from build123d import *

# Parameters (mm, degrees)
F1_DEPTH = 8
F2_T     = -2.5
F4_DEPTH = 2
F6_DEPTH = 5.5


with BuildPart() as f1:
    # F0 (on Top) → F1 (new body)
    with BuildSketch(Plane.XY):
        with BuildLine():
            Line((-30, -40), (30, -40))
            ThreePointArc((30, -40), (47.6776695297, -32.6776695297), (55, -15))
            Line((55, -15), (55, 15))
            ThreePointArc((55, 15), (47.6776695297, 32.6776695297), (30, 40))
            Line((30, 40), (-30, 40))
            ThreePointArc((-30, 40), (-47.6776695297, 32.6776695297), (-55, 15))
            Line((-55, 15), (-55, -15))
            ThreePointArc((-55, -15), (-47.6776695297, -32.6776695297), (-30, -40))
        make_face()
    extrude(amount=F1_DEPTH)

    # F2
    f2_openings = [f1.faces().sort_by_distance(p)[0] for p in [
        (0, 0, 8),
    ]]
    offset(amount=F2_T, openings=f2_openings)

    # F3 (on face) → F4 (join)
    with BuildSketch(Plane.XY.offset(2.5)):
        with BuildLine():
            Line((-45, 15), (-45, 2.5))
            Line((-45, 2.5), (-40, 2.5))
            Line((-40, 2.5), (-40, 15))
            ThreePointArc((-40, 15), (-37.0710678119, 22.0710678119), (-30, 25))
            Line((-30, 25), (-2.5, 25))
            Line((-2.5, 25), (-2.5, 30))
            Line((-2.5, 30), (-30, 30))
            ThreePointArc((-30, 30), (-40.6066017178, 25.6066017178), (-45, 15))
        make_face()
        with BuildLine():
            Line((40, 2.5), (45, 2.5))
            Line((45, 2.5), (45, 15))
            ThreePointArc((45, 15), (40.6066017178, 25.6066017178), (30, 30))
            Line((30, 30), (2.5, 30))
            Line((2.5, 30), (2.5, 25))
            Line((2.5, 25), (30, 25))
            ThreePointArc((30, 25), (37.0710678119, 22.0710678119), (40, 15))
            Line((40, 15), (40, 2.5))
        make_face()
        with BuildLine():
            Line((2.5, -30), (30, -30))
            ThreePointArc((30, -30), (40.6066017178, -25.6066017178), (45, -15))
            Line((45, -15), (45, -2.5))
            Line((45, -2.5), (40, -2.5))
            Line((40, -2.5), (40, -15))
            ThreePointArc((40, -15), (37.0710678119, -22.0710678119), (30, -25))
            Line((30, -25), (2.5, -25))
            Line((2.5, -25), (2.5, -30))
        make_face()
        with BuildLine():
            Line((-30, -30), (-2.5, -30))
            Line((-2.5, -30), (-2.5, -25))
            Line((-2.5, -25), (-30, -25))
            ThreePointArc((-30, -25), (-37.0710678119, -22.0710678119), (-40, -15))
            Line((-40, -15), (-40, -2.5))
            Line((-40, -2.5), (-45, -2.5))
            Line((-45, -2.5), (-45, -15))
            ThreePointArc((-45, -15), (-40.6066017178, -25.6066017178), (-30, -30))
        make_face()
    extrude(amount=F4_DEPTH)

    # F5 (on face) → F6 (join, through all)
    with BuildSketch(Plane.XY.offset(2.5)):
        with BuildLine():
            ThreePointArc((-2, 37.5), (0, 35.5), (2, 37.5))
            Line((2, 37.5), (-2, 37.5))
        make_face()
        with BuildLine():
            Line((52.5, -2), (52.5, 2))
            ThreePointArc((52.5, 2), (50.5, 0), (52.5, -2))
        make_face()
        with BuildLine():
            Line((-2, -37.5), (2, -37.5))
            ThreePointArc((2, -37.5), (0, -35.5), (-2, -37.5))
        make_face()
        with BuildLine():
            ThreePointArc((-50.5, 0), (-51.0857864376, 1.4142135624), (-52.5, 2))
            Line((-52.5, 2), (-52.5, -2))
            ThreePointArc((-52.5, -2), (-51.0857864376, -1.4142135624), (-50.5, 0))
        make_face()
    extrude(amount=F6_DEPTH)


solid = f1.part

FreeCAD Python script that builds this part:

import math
import FreeCAD as App
import Part
import Sketcher


def faces_at(feature, points):
    """Names of the faces that lie closest to the given points."""
    faces = feature.Shape.Faces
    near = lambda p: min(range(len(faces)), key=lambda i: faces[i].distToShape(Part.Vertex(*p))[0])
    return sorted({f"Face{near(p) + 1}" for p in points})

doc = App.newDocument("Part")
body = doc.addObject("PartDesign::Body", "Body")

sketch1 = body.newObject("Sketcher::SketchObject", "Sketch")
sketch1.AttachmentSupport = (doc.getObject("XY_Plane"), [""])
sketch1.MapMode = "FlatFace"
sketch1.addGeometry(Part.LineSegment(App.Vector(-30, -40, 0), App.Vector(30, -40, 0)), False)
sketch1.addGeometry(Part.ArcOfCircle(Part.Circle(App.Vector(30, -15, 0), App.Vector(0, 0, 1), 25), math.radians(-90), math.radians(0)), False)
sketch1.addGeometry(Part.LineSegment(App.Vector(55, -15, 0), App.Vector(55, 15, 0)), False)
sketch1.addGeometry(Part.ArcOfCircle(Part.Circle(App.Vector(30, 15, 0), App.Vector(0, 0, 1), 25), math.radians(0), math.radians(90)), False)
sketch1.addGeometry(Part.LineSegment(App.Vector(30, 40, 0), App.Vector(-30, 40, 0)), False)
sketch1.addGeometry(Part.ArcOfCircle(Part.Circle(App.Vector(-30, 15, 0), App.Vector(0, 0, 1), 25), math.radians(90), math.radians(180)), False)
sketch1.addGeometry(Part.LineSegment(App.Vector(-55, 15, 0), App.Vector(-55, -15, 0)), False)
sketch1.addGeometry(Part.ArcOfCircle(Part.Circle(App.Vector(-30, -15, 0), App.Vector(0, 0, 1), 25), math.radians(180), math.radians(270)), False)
sketch1.addConstraint(Sketcher.Constraint("Tangent", 0, 2, 1, 1))
sketch1.addConstraint(Sketcher.Constraint("Tangent", 1, 2, 2, 1))
sketch1.addConstraint(Sketcher.Constraint("Tangent", 2, 2, 3, 1))
sketch1.addConstraint(Sketcher.Constraint("Tangent", 3, 2, 4, 1))
sketch1.addConstraint(Sketcher.Constraint("Tangent", 4, 2, 5, 1))
sketch1.addConstraint(Sketcher.Constraint("Tangent", 5, 2, 6, 1))
sketch1.addConstraint(Sketcher.Constraint("Tangent", 6, 2, 7, 1))
sketch1.addConstraint(Sketcher.Constraint("Tangent", 7, 2, 0, 1))
sketch1.addConstraint(Sketcher.Constraint("Horizontal", 0))
sketch1.addConstraint(Sketcher.Constraint("Vertical", 2))
sketch1.addConstraint(Sketcher.Constraint("Horizontal", 4))
sketch1.addConstraint(Sketcher.Constraint("Vertical", 6))
sketch1.addConstraint(Sketcher.Constraint("Equal", 1, 3))
sketch1.addConstraint(Sketcher.Constraint("Equal", 3, 5))
sketch1.addConstraint(Sketcher.Constraint("Equal", 5, 7))
sketch1.addConstraint(Sketcher.Constraint("Symmetric", 1, 3, 5, 3, -1, 1))
sketch1.addConstraint(Sketcher.Constraint("Radius", 1, 25.0))
sketch1.addConstraint(Sketcher.Constraint("DistanceX", 0, 1, 0, 2, 60.0))
sketch1.addConstraint(Sketcher.Constraint("DistanceY", 2, 1, 2, 2, 30.0))
pad1 = body.newObject("PartDesign::Pad", "Pad")
pad1.Profile = sketch1
pad1.Length = 8
doc.recompute()

thickness = body.newObject("PartDesign::Thickness", "Thickness")
thickness.Base = (pad1, faces_at(pad1, [(0, 0, 8)]))
thickness.Value = 2.5
thickness.Reversed = True
thickness.Join = "Arc"

sketch2 = body.newObject("Sketcher::SketchObject", "Sketch001")
sketch2.AttachmentSupport = (doc.getObject("XY_Plane"), [""])
sketch2.MapMode = "FlatFace"
sketch2.AttachmentOffset = App.Placement(App.Vector(0, 0, 2.5), App.Rotation())
sketch2.addGeometry(Part.LineSegment(App.Vector(-45, 15, 0), App.Vector(-45, 2.5, 0)), False)
sketch2.addGeometry(Part.LineSegment(App.Vector(-45, 2.5, 0), App.Vector(-40, 2.5, 0)), False)
sketch2.addGeometry(Part.LineSegment(App.Vector(-40, 2.5, 0), App.Vector(-40, 15, 0)), False)
sketch2.addGeometry(Part.ArcOfCircle(Part.Circle(App.Vector(-30, 15, 0), App.Vector(0, 0, 1), 10), math.radians(90), math.radians(180)), False)
sketch2.addGeometry(Part.LineSegment(App.Vector(-30, 25, 0), App.Vector(-2.5, 25, 0)), False)
sketch2.addGeometry(Part.LineSegment(App.Vector(-2.5, 25, 0), App.Vector(-2.5, 30, 0)), False)
sketch2.addGeometry(Part.LineSegment(App.Vector(-2.5, 30, 0), App.Vector(-30, 30, 0)), False)
sketch2.addGeometry(Part.ArcOfCircle(Part.Circle(App.Vector(-30, 15, 0), App.Vector(0, 0, 1), 15), math.radians(90), math.radians(180)), False)
sketch2.addGeometry(Part.LineSegment(App.Vector(40, 2.5, 0), App.Vector(45, 2.5, 0)), False)
sketch2.addGeometry(Part.LineSegment(App.Vector(45, 2.5, 0), App.Vector(45, 15, 0)), False)
sketch2.addGeometry(Part.ArcOfCircle(Part.Circle(App.Vector(30, 15, 0), App.Vector(0, 0, 1), 15), math.radians(0), math.radians(90)), False)
sketch2.addGeometry(Part.LineSegment(App.Vector(30, 30, 0), App.Vector(2.5, 30, 0)), False)
sketch2.addGeometry(Part.LineSegment(App.Vector(2.5, 30, 0), App.Vector(2.5, 25, 0)), False)
sketch2.addGeometry(Part.LineSegment(App.Vector(2.5, 25, 0), App.Vector(30, 25, 0)), False)
sketch2.addGeometry(Part.ArcOfCircle(Part.Circle(App.Vector(30, 15, 0), App.Vector(0, 0, 1), 10), math.radians(0), math.radians(90)), False)
sketch2.addGeometry(Part.LineSegment(App.Vector(40, 15, 0), App.Vector(40, 2.5, 0)), False)
sketch2.addGeometry(Part.LineSegment(App.Vector(2.5, -30, 0), App.Vector(30, -30, 0)), False)
sketch2.addGeometry(Part.ArcOfCircle(Part.Circle(App.Vector(30, -15, 0), App.Vector(0, 0, 1), 15), math.radians(-90), math.radians(0)), False)
sketch2.addGeometry(Part.LineSegment(App.Vector(45, -15, 0), App.Vector(45, -2.5, 0)), False)
sketch2.addGeometry(Part.LineSegment(App.Vector(45, -2.5, 0), App.Vector(40, -2.5, 0)), False)
sketch2.addGeometry(Part.LineSegment(App.Vector(40, -2.5, 0), App.Vector(40, -15, 0)), False)
sketch2.addGeometry(Part.ArcOfCircle(Part.Circle(App.Vector(30, -15, 0), App.Vector(0, 0, 1), 10), math.radians(-90), math.radians(0)), False)
sketch2.addGeometry(Part.LineSegment(App.Vector(30, -25, 0), App.Vector(2.5, -25, 0)), False)
sketch2.addGeometry(Part.LineSegment(App.Vector(2.5, -25, 0), App.Vector(2.5, -30, 0)), False)
sketch2.addGeometry(Part.LineSegment(App.Vector(-30, -30, 0), App.Vector(-2.5, -30, 0)), False)
sketch2.addGeometry(Part.LineSegment(App.Vector(-2.5, -30, 0), App.Vector(-2.5, -25, 0)), False)
sketch2.addGeometry(Part.LineSegment(App.Vector(-2.5, -25, 0), App.Vector(-30, -25, 0)), False)
sketch2.addGeometry(Part.ArcOfCircle(Part.Circle(App.Vector(-30, -15, 0), App.Vector(0, 0, 1), 10), math.radians(180), math.radians(270)), False)
sketch2.addGeometry(Part.LineSegment(App.Vector(-40, -15, 0), App.Vector(-40, -2.5, 0)), False)
sketch2.addGeometry(Part.LineSegment(App.Vector(-40, -2.5, 0), App.Vector(-45, -2.5, 0)), False)
sketch2.addGeometry(Part.LineSegment(App.Vector(-45, -2.5, 0), App.Vector(-45, -15, 0)), False)
sketch2.addGeometry(Part.ArcOfCircle(Part.Circle(App.Vector(-30, -15, 0), App.Vector(0, 0, 1), 15), math.radians(180), math.radians(270)), False)
sketch2.addConstraint(Sketcher.Constraint("Coincident", 0, 2, 1, 1))
sketch2.addConstraint(Sketcher.Constraint("Coincident", 1, 2, 2, 1))
sketch2.addConstraint(Sketcher.Constraint("Tangent", 2, 2, 3, 2))
sketch2.addConstraint(Sketcher.Constraint("Tangent", 3, 1, 4, 1))
sketch2.addConstraint(Sketcher.Constraint("Coincident", 4, 2, 5, 1))
sketch2.addConstraint(Sketcher.Constraint("Coincident", 5, 2, 6, 1))
sketch2.addConstraint(Sketcher.Constraint("Tangent", 6, 2, 7, 1))
sketch2.addConstraint(Sketcher.Constraint("Tangent", 7, 2, 0, 1))
sketch2.addConstraint(Sketcher.Constraint("Coincident", 8, 2, 9, 1))
sketch2.addConstraint(Sketcher.Constraint("Tangent", 9, 2, 10, 1))
sketch2.addConstraint(Sketcher.Constraint("Tangent", 10, 2, 11, 1))
sketch2.addConstraint(Sketcher.Constraint("Coincident", 11, 2, 12, 1))
sketch2.addConstraint(Sketcher.Constraint("Coincident", 12, 2, 13, 1))
sketch2.addConstraint(Sketcher.Constraint("Tangent", 13, 2, 14, 2))
sketch2.addConstraint(Sketcher.Constraint("Tangent", 14, 1, 15, 1))
sketch2.addConstraint(Sketcher.Constraint("Coincident", 15, 2, 8, 1))
sketch2.addConstraint(Sketcher.Constraint("Tangent", 16, 2, 17, 1))
sketch2.addConstraint(Sketcher.Constraint("Tangent", 17, 2, 18, 1))
sketch2.addConstraint(Sketcher.Constraint("Coincident", 18, 2, 19, 1))
sketch2.addConstraint(Sketcher.Constraint("Coincident", 19, 2, 20, 1))
sketch2.addConstraint(Sketcher.Constraint("Tangent", 20, 2, 21, 2))
sketch2.addConstraint(Sketcher.Constraint("Tangent", 21, 1, 22, 1))
sketch2.addConstraint(Sketcher.Constraint("Coincident", 22, 2, 23, 1))
sketch2.addConstraint(Sketcher.Constraint("Coincident", 23, 2, 16, 1))
sketch2.addConstraint(Sketcher.Constraint("Coincident", 24, 2, 25, 1))
sketch2.addConstraint(Sketcher.Constraint("Coincident", 25, 2, 26, 1))
sketch2.addConstraint(Sketcher.Constraint("Tangent", 26, 2, 27, 2))
sketch2.addConstraint(Sketcher.Constraint("Tangent", 27, 1, 28, 1))
sketch2.addConstraint(Sketcher.Constraint("Coincident", 28, 2, 29, 1))
sketch2.addConstraint(Sketcher.Constraint("Coincident", 29, 2, 30, 1))
sketch2.addConstraint(Sketcher.Constraint("Tangent", 30, 2, 31, 1))
sketch2.addConstraint(Sketcher.Constraint("Tangent", 31, 2, 24, 1))
sketch2.addConstraint(Sketcher.Constraint("Vertical", 0))
sketch2.addConstraint(Sketcher.Constraint("Horizontal", 1))
sketch2.addConstraint(Sketcher.Constraint("Vertical", 2))
sketch2.addConstraint(Sketcher.Constraint("Horizontal", 4))
sketch2.addConstraint(Sketcher.Constraint("Vertical", 5))
sketch2.addConstraint(Sketcher.Constraint("Horizontal", 6))
sketch2.addConstraint(Sketcher.Constraint("Horizontal", 8))
sketch2.addConstraint(Sketcher.Constraint("Vertical", 9))
sketch2.addConstraint(Sketcher.Constraint("Horizontal", 11))
sketch2.addConstraint(Sketcher.Constraint("Vertical", 12))
sketch2.addConstraint(Sketcher.Constraint("Horizontal", 13))
sketch2.addConstraint(Sketcher.Constraint("Vertical", 15))
sketch2.addConstraint(Sketcher.Constraint("Horizontal", 16))
sketch2.addConstraint(Sketcher.Constraint("Vertical", 18))
sketch2.addConstraint(Sketcher.Constraint("Horizontal", 19))
sketch2.addConstraint(Sketcher.Constraint("Vertical", 20))
sketch2.addConstraint(Sketcher.Constraint("Horizontal", 22))
sketch2.addConstraint(Sketcher.Constraint("Vertical", 23))
sketch2.addConstraint(Sketcher.Constraint("Horizontal", 24))
sketch2.addConstraint(Sketcher.Constraint("Vertical", 25))
sketch2.addConstraint(Sketcher.Constraint("Horizontal", 26))
sketch2.addConstraint(Sketcher.Constraint("Vertical", 28))
sketch2.addConstraint(Sketcher.Constraint("Horizontal", 29))
sketch2.addConstraint(Sketcher.Constraint("Vertical", 30))
sketch2.addConstraint(Sketcher.Constraint("Coincident", 7, 3, 3, 3))
sketch2.addConstraint(Sketcher.Constraint("Coincident", 14, 3, 10, 3))
sketch2.addConstraint(Sketcher.Constraint("Coincident", 21, 3, 17, 3))
sketch2.addConstraint(Sketcher.Constraint("Coincident", 31, 3, 27, 3))
sketch2.addConstraint(Sketcher.Constraint("Equal", 7, 10))
sketch2.addConstraint(Sketcher.Constraint("Equal", 3, 14))
sketch2.addConstraint(Sketcher.Constraint("Equal", 10, 17))
sketch2.addConstraint(Sketcher.Constraint("Equal", 14, 21))
sketch2.addConstraint(Sketcher.Constraint("Equal", 21, 27))
sketch2.addConstraint(Sketcher.Constraint("Equal", 17, 31))
sketch2.addConstraint(Sketcher.Constraint("Symmetric", 3, 3, 17, 3, -1, 1))
sketch2.addConstraint(Sketcher.Constraint("Symmetric", 10, 3, 27, 3, -1, 1))
sketch2.addConstraint(Sketcher.Constraint("Symmetric", 3, 3, 10, 3, -2))
sketch2.addConstraint(Sketcher.Constraint("Horizontal", 1, 2, 8, 2))
sketch2.addConstraint(Sketcher.Constraint("Horizontal", 19, 2, 28, 2))
sketch2.addConstraint(Sketcher.Constraint("Vertical", 12, 2, 22, 2))
sketch2.addConstraint(Sketcher.Constraint("Vertical", 5, 2, 24, 2))
sketch2.addConstraint(Sketcher.Constraint("Equal", 6, 11))
sketch2.addConstraint(Sketcher.Constraint("Equal", 15, 18))
sketch2.addConstraint(Sketcher.Constraint("Radius", 3, 10.0))
sketch2.addConstraint(Sketcher.Constraint("Radius", 7, 15.0))
sketch2.addConstraint(Sketcher.Constraint("DistanceX", 4, 1, 4, 2, 27.5))
sketch2.addConstraint(Sketcher.Constraint("DistanceY", 0, 2, 0, 1, 12.5))
sketch2.addConstraint(Sketcher.Constraint("DistanceX", 3, 3, -1, 1, 30.0))
sketch2.addConstraint(Sketcher.Constraint("DistanceY", -1, 1, 3, 3, 15.0))
pad2 = body.newObject("PartDesign::Pad", "Pad001")
pad2.Profile = sketch2
pad2.Length = 2

sketch3 = body.newObject("Sketcher::SketchObject", "Sketch002")
sketch3.AttachmentSupport = (doc.getObject("XY_Plane"), [""])
sketch3.MapMode = "FlatFace"
sketch3.AttachmentOffset = App.Placement(App.Vector(0, 0, 2.5), App.Rotation())
sketch3.addGeometry(Part.ArcOfCircle(Part.Circle(App.Vector(0, 37.5, 0), App.Vector(0, 0, 1), 2), math.radians(180), math.radians(360)), False)
sketch3.addGeometry(Part.LineSegment(App.Vector(2, 37.5, 0), App.Vector(-2, 37.5, 0)), False)
sketch3.addGeometry(Part.LineSegment(App.Vector(52.5, -2, 0), App.Vector(52.5, 2, 0)), False)
sketch3.addGeometry(Part.ArcOfCircle(Part.Circle(App.Vector(52.5, 0, 0), App.Vector(0, 0, 1), 2), math.radians(90), math.radians(270)), False)
sketch3.addGeometry(Part.LineSegment(App.Vector(-2, -37.5, 0), App.Vector(2, -37.5, 0)), False)
sketch3.addGeometry(Part.ArcOfCircle(Part.Circle(App.Vector(0, -37.5, 0), App.Vector(0, 0, 1), 2), math.radians(0), math.radians(180)), False)
sketch3.addGeometry(Part.ArcOfCircle(Part.Circle(App.Vector(-52.5, 0, 0), App.Vector(0, 0, 1), 2), math.radians(0), math.radians(90)), False)
sketch3.addGeometry(Part.LineSegment(App.Vector(-52.5, 2, 0), App.Vector(-52.5, -2, 0)), False)
sketch3.addGeometry(Part.ArcOfCircle(Part.Circle(App.Vector(-52.5, 0, 0), App.Vector(0, 0, 1), 2), math.radians(-90), math.radians(0)), False)
sketch3.addConstraint(Sketcher.Constraint("Coincident", 0, 1, 1, 2))
sketch3.addConstraint(Sketcher.Constraint("Coincident", 1, 1, 0, 2))
sketch3.addConstraint(Sketcher.Constraint("Coincident", 2, 1, 3, 2))
sketch3.addConstraint(Sketcher.Constraint("Coincident", 3, 1, 2, 2))
sketch3.addConstraint(Sketcher.Constraint("Coincident", 4, 1, 5, 2))
sketch3.addConstraint(Sketcher.Constraint("Coincident", 5, 1, 4, 2))
sketch3.addConstraint(Sketcher.Constraint("Coincident", 6, 2, 7, 1))
sketch3.addConstraint(Sketcher.Constraint("Coincident", 7, 2, 8, 1))
sketch3.addConstraint(Sketcher.Constraint("Tangent", 8, 2, 6, 1))
sketch3.addConstraint(Sketcher.Constraint("Horizontal", 1))
sketch3.addConstraint(Sketcher.Constraint("Vertical", 2))
sketch3.addConstraint(Sketcher.Constraint("Horizontal", 4))
sketch3.addConstraint(Sketcher.Constraint("Vertical", 7))
sketch3.addConstraint(Sketcher.Constraint("Equal", 0, 3))
sketch3.addConstraint(Sketcher.Constraint("Equal", 3, 5))
sketch3.addConstraint(Sketcher.Constraint("Equal", 5, 6))
sketch3.addConstraint(Sketcher.Constraint("Equal", 6, 8))
sketch3.addConstraint(Sketcher.Constraint("Symmetric", 0, 3, 5, 3, -1, 1))
sketch3.addConstraint(Sketcher.Constraint("Symmetric", 3, 3, 6, 3, -1, 1))
sketch3.addConstraint(Sketcher.Constraint("Symmetric", 3, 1, 6, 2, -2))
sketch3.addConstraint(Sketcher.Constraint("Symmetric", 0, 1, 4, 1, -1))
sketch3.addConstraint(Sketcher.Constraint("PointOnObject", 8, 2, -1))
sketch3.addConstraint(Sketcher.Constraint("Horizontal", 5, 3, 4, 1))
sketch3.addConstraint(Sketcher.Constraint("Vertical", 3, 3, 2, 1))
sketch3.addConstraint(Sketcher.Constraint("Radius", 0, 2.0))
sketch3.addConstraint(Sketcher.Constraint("DistanceY", 5, 3, 0, 3, 75.0))
sketch3.addConstraint(Sketcher.Constraint("DistanceX", 6, 3, 3, 3, 105.0))
pad3 = body.newObject("PartDesign::Pad", "Pad002")
pad3.Profile = sketch3
pad3.Length = 5.5

doc.recompute()
